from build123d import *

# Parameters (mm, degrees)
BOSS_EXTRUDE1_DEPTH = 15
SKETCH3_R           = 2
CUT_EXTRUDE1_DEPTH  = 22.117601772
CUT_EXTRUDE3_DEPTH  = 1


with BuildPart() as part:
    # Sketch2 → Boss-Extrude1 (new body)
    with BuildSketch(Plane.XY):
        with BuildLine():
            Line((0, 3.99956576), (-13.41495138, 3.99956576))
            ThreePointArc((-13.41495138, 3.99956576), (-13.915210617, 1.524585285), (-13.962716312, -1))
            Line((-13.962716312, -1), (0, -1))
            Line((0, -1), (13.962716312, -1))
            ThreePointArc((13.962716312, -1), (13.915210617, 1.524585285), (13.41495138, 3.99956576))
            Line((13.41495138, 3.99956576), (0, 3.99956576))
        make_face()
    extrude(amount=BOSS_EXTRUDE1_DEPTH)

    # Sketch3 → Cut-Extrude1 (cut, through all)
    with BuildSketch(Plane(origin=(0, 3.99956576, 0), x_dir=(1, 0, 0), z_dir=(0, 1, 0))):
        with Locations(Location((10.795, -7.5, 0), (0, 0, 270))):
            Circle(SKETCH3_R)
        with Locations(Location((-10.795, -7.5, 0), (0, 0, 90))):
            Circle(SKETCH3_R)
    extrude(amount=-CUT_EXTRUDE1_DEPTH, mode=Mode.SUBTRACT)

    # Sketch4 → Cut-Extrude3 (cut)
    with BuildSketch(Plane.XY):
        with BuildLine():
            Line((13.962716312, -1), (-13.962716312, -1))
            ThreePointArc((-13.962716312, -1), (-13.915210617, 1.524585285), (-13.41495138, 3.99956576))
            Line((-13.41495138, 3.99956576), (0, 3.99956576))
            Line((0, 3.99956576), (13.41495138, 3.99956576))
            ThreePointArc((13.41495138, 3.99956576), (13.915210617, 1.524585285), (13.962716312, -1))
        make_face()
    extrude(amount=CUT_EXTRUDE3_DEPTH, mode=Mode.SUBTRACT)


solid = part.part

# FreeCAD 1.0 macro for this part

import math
import FreeCAD as App
import Part
import Sketcher

V = App.Vector
Q = App.Units.Quantity

doc = App.newDocument("Part")
body = doc.addObject("PartDesign::Body", "Body")

# Sketch on XY plane
sketch1 = body.newObject("Sketcher::SketchObject", "Sketch")
sketch1.AttachmentSupport = (doc.getObject("XY_Plane"), [""])
sketch1.MapMode = "FlatFace"
sketch1.addGeometry([
    Part.ArcOfCircle(Part.Circle(V(0, 0, 0), V(0, 0, 1), 14), math.radians(163), math.radians(184)),
    Part.LineSegment(V(-14, -1, 0), V(14, -1, 0)),
    Part.ArcOfCircle(Part.Circle(V(0, 0, 0), V(0, 0, 1), 14), math.radians(-4), math.radians(17)),
    Part.LineSegment(V(13, 4, 0), V(-13, 4, 0)),
], False)
sketch1.addConstraint([
    Sketcher.Constraint("Coincident", 0, 2, 1, 1),
    Sketcher.Constraint("Coincident", 1, 2, 2, 1),
    Sketcher.Constraint("Coincident", 2, 2, 3, 1),
    Sketcher.Constraint("Coincident", 3, 2, 0, 1),
    Sketcher.Constraint("Horizontal", 1),
    Sketcher.Constraint("Horizontal", 3),
    Sketcher.Constraint("Coincident", 0, 3, -1, 1),
    Sketcher.Constraint("Coincident", 2, 3, -1, 1),
    Sketcher.Constraint("Equal", 0, 2),
    Sketcher.Constraint("DistanceY", 0, 2, -1, 1, Q("1 mm")),
    Sketcher.Constraint("Radius", 0, Q("13.99848 mm")),
    Sketcher.Constraint("DistanceX", 3, 2, 3, 1, Q("26.829903 mm")),
])
pad1 = body.newObject("PartDesign::Pad", "Pad")
pad1.Profile = sketch1
pad1.Length = 15

# Sketch on XZ plane
sketch2 = body.newObject("Sketcher::SketchObject", "Sketch001")
sketch2.AttachmentSupport = (doc.getObject("XZ_Plane"), [""])
sketch2.MapMode = "FlatFace"
sketch2.AttachmentOffset = App.Placement(V(0, 0, -3.999566), App.Rotation())
sketch2.addGeometry([
    Part.Circle(V(10.8, 7.5, 0), V(0, 0, 1), 2),
    Part.Circle(V(-10.8, 7.5, 0), V(0, 0, 1), 2),
], False)
sketch2.addConstraint([
    Sketcher.Constraint("Equal", 0, 1),
    Sketcher.Constraint("Symmetric", 0, 3, 1, 3, -2),
    Sketcher.Constraint("Diameter", 0, Q("4 mm")),
    Sketcher.Constraint("DistanceY", -1, 1, 0, 3, Q("7.5 mm")),
    Sketcher.Constraint("DistanceX", 1, 3, 0, 3, Q("21.59 mm")),
])
pocket1 = body.newObject("PartDesign::Pocket", "Pocket")
pocket1.Profile = sketch2
pocket1.Type = "ThroughAll"
pocket1.Reversed = True

# Sketch on XY plane
sketch3 = body.newObject("Sketcher::SketchObject", "Sketch002")
sketch3.AttachmentSupport = (doc.getObject("XY_Plane"), [""])
sketch3.MapMode = "FlatFace"
sketch3.addGeometry([
    Part.LineSegment(V(-14, -1, 0), V(14, -1, 0)),
    Part.ArcOfCircle(Part.Circle(V(0, 0, 0), V(0, 0, 1), 14), math.radians(-4), math.radians(17)),
    Part.LineSegment(V(13, 4, 0), V(-13, 4, 0)),
    Part.ArcOfCircle(Part.Circle(V(0, 0, 0), V(0, 0, 1), 14), math.radians(163), math.radians(184)),
], False)
sketch3.addConstraint([
    Sketcher.Constraint("Coincident", 0, 2, 1, 1),
    Sketcher.Constraint("Coincident", 1, 2, 2, 1),
    Sketcher.Constraint("Coincident", 2, 2, 3, 1),
    Sketcher.Constraint("Coincident", 3, 2, 0, 1),
    Sketcher.Constraint("Horizontal", 0),
    Sketcher.Constraint("Horizontal", 2),
    Sketcher.Constraint("Coincident", 1, 3, -1, 1),
    Sketcher.Constraint("Coincident", 3, 3, -1, 1),
    Sketcher.Constraint("Equal", 1, 3),
    Sketcher.Constraint("DistanceY", 0, 2, -1, 1, Q("1 mm")),
    Sketcher.Constraint("Radius", 1, Q("13.99848 mm")),
    Sketcher.Constraint("DistanceX", 2, 2, 2, 1, Q("26.829903 mm")),
])
pocket2 = body.newObject("PartDesign::Pocket", "Pocket001")
pocket2.Profile = sketch3
pocket2.Length = 1
pocket2.Reversed = True

doc.recompute()
